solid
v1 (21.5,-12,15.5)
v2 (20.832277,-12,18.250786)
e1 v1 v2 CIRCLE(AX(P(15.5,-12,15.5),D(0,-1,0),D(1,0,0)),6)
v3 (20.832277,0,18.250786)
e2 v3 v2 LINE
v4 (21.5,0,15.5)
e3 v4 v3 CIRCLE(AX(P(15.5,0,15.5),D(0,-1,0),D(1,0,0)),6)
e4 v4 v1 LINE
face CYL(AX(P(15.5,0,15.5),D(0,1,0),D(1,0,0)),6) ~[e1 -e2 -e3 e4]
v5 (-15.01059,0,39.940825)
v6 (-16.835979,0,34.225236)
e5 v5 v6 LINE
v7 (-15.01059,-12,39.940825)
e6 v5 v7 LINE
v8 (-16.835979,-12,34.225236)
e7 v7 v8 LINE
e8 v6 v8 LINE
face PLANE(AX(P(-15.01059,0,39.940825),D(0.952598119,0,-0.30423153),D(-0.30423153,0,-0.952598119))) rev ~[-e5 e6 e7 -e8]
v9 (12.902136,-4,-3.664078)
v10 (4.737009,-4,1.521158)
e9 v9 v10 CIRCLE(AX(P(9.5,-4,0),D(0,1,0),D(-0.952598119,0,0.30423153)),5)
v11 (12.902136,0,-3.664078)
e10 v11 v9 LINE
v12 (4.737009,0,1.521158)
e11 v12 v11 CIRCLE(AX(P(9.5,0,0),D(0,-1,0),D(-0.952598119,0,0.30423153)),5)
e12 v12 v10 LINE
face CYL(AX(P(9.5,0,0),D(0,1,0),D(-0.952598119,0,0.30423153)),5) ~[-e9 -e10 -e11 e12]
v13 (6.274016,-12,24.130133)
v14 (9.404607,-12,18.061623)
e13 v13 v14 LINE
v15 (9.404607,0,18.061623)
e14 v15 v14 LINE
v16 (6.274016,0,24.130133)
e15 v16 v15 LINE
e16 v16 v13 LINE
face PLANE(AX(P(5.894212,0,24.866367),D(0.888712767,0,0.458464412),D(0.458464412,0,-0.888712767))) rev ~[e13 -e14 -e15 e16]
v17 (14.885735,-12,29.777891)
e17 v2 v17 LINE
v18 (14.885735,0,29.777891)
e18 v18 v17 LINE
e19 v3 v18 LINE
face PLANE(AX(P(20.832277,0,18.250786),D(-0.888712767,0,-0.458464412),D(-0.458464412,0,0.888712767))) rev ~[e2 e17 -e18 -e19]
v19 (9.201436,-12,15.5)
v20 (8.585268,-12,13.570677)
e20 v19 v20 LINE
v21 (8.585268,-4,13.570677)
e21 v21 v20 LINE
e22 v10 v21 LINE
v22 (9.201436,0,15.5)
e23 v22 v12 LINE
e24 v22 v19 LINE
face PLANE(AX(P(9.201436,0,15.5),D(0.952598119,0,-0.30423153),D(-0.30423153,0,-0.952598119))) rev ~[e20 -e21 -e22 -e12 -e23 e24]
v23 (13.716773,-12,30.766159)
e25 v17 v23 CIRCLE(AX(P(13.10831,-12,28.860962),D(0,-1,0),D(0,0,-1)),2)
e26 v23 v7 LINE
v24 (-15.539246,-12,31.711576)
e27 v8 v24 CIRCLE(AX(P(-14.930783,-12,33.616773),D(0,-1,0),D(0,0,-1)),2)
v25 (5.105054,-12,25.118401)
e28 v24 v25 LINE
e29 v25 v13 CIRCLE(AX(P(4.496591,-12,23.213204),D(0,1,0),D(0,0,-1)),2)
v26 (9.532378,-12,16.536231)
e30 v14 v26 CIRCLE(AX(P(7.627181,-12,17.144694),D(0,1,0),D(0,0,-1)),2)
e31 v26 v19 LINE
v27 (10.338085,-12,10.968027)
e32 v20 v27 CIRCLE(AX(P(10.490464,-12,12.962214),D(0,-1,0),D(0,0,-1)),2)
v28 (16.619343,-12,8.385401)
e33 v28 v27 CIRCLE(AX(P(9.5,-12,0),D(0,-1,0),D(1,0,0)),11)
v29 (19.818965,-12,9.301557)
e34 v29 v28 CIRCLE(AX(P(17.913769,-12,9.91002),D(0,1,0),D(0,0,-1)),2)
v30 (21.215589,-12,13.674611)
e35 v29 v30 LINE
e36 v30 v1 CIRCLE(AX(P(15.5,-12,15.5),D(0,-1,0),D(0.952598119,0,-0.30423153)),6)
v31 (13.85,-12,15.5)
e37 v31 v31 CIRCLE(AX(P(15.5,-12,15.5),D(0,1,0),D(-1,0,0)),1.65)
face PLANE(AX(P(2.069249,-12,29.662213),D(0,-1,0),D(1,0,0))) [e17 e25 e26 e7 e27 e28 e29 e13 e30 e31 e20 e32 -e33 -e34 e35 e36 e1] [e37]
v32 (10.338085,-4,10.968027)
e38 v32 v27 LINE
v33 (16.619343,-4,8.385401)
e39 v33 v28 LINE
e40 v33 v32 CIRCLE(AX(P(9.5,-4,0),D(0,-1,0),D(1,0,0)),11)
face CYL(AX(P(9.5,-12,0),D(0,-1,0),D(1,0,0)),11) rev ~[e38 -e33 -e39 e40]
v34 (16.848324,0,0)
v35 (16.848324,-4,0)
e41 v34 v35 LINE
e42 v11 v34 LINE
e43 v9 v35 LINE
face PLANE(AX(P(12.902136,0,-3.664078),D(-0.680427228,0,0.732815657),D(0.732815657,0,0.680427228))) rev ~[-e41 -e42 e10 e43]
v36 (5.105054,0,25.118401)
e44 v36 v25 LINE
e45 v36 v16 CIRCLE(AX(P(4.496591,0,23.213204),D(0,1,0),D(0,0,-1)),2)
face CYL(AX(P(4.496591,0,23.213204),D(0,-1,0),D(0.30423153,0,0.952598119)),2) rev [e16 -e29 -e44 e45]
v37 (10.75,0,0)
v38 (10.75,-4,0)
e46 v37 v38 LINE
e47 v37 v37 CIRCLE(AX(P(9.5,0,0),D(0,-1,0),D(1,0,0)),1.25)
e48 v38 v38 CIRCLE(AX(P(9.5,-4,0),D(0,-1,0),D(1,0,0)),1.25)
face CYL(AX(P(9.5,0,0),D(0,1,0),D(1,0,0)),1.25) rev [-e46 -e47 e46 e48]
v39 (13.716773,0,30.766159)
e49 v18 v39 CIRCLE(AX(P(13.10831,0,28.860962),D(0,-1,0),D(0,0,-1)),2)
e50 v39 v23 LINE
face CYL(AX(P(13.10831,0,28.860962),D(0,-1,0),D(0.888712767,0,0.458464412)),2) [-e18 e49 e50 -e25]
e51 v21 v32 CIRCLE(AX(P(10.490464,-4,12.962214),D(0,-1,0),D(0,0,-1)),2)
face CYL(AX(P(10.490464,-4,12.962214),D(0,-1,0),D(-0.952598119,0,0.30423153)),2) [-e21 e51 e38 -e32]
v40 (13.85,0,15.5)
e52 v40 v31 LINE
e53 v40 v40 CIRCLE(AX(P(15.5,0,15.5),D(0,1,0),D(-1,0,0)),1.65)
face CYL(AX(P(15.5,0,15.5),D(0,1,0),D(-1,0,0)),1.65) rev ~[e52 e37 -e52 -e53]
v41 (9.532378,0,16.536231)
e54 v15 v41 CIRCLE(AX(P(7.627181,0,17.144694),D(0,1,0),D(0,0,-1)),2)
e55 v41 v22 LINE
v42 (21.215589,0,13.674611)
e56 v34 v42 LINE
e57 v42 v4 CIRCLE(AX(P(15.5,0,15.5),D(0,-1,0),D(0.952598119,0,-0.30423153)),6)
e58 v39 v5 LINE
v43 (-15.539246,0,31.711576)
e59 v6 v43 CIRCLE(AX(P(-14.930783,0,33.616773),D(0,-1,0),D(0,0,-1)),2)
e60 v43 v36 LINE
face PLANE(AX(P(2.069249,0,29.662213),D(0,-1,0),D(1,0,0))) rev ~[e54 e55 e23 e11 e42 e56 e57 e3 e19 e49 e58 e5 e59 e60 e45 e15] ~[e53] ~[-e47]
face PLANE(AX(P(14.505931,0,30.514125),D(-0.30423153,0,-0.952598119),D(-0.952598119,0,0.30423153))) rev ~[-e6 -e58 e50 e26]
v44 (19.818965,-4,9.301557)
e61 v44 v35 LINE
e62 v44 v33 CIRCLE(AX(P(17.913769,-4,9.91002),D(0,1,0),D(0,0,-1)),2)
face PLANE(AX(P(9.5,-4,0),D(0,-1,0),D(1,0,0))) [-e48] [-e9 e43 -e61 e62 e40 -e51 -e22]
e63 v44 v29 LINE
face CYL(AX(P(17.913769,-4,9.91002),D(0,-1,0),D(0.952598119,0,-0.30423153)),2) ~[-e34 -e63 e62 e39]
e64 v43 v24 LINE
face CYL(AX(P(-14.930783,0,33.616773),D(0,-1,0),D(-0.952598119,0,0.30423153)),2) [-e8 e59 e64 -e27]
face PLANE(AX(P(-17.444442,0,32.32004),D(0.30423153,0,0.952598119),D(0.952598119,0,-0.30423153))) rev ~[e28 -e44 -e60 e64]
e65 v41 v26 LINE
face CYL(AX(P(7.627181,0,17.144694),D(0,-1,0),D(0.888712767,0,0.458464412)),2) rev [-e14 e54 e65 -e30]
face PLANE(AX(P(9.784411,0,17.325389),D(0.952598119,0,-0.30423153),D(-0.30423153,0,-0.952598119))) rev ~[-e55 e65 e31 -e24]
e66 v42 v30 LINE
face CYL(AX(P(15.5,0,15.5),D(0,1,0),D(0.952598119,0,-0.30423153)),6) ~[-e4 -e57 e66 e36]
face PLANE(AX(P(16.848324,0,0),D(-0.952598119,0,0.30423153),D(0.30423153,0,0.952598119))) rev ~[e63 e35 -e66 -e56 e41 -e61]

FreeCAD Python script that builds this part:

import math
import FreeCAD as App
import Part
import Sketcher
from FreeCAD import Vector


def edges_at(feature, points):
    """Names of the edges that pass closest to the given points."""
    edges = feature.Shape.Edges
    near = lambda p: min(range(len(edges)), key=lambda i: edges[i].distToShape(Part.Vertex(*p))[0])
    return sorted({f"Edge{near(p) + 1}" for p in points})

doc = App.newDocument("Part")
body = doc.addObject("PartDesign::Body", "Body")

sketch1 = body.newObject("Sketcher::SketchObject", "Sketch")
sketch1.AttachmentSupport = (doc.getObject("XZ_Plane"), [""])
sketch1.MapMode = "FlatFace"
sketch1.addGeometry(Part.LineSegment(Vector(20.832277, 18.250786, 0), Vector(14.505931, 30.514125, 0)), False)
sketch1.addGeometry(Part.LineSegment(Vector(14.505931, 30.514125, 0), Vector(-15.01059, 39.940825, 0)), False)
sketch1.addGeometry(Part.LineSegment(Vector(-15.01059, 39.940825, 0), Vector(-17.444442, 32.32004, 0)), False)
sketch1.addGeometry(Part.LineSegment(Vector(-17.444442, 32.32004, 0), Vector(5.894212, 24.866367, 0)), False)
sketch1.addGeometry(Part.LineSegment(Vector(5.894212, 24.866367, 0), Vector(9.784411, 17.325389, 0)), False)
sketch1.addGeometry(Part.LineSegment(Vector(9.784411, 17.325389, 0), Vector(9.201436, 15.5, 0)), False)
sketch1.addGeometry(Part.LineSegment(Vector(9.201436, 15.5, 0), Vector(4.737009, 1.521158, 0)), False)
sketch1.addGeometry(Part.ArcOfCircle(Part.Circle(Vector(9.5, 0, 0), Vector(0, 0, 1), 5), math.radians(162.288063), math.radians(312.877037)), False)
sketch1.addGeometry(Part.LineSegment(Vector(12.902136, -3.664078, 0), Vector(16.848324, 0, 0)), False)
sketch1.addGeometry(Part.LineSegment(Vector(16.848324, 0, 0), Vector(21.215589, 13.674611, 0)), False)
sketch1.addGeometry(Part.ArcOfCircle(Part.Circle(Vector(15.5, 15.5, 0), Vector(0, 0, 1), 6), math.radians(-17.711937), math.radians(0)), False)
sketch1.addGeometry(Part.ArcOfCircle(Part.Circle(Vector(15.5, 15.5, 0), Vector(0, 0, 1), 6), math.radians(0), math.radians(27.288063)), False)
sketch1.addGeometry(Part.Circle(Vector(9.5, 0, 0), Vector(0, 0, 1), 1.25), False)
sketch1.addGeometry(Part.Circle(Vector(15.5, 15.5, 0), Vector(0, 0, 1), 1.65), False)
sketch1.addConstraint(Sketcher.Constraint("Coincident", 0, 2, 1, 1))
sketch1.addConstraint(Sketcher.Constraint("Coincident", 1, 2, 2, 1))
sketch1.addConstraint(Sketcher.Constraint("Coincident", 2, 2, 3, 1))
sketch1.addConstraint(Sketcher.Constraint("Coincident", 3, 2, 4, 1))
sketch1.addConstraint(Sketcher.Constraint("Coincident", 4, 2, 5, 1))
sketch1.addConstraint(Sketcher.Constraint("Coincident", 5, 2, 6, 1))
sketch1.addConstraint(Sketcher.Constraint("Tangent", 6, 2, 7, 1))
sketch1.addConstraint(Sketcher.Constraint("Tangent", 7, 2, 8, 1))
sketch1.addConstraint(Sketcher.Constraint("Coincident", 8, 2, 9, 1))
sketch1.addConstraint(Sketcher.Constraint("Tangent", 9, 2, 10, 1))
sketch1.addConstraint(Sketcher.Constraint("Tangent", 10, 2, 11, 1))
sketch1.addConstraint(Sketcher.Constraint("Tangent", 11, 2, 0, 1))
sketch1.addConstraint(Sketcher.Constraint("Coincident", 12, 3, 7, 3))
sketch1.addConstraint(Sketcher.Constraint("Coincident", 13, 3, 10, 3))
sketch1.addConstraint(Sketcher.Constraint("Equal", 10, 11))
sketch1.addConstraint(Sketcher.Constraint("PointOnObject", 7, 3, -1))
sketch1.addConstraint(Sketcher.Constraint("PointOnObject", 8, 2, -1))
sketch1.addConstraint(Sketcher.Constraint("Perpendicular", 1, 2))
sketch1.addConstraint(Sketcher.Constraint("Perpendicular", 2, 3))
sketch1.addConstraint(Sketcher.Constraint("Parallel", 0, 4))
sketch1.addConstraint(Sketcher.Constraint("Perpendicular", 3, 5))
sketch1.addConstraint(Sketcher.Constraint("Parallel", 5, 6))
sketch1.addConstraint(Sketcher.Constraint("Parallel", 6, 9))
sketch1.addConstraint(Sketcher.Constraint("Horizontal", 13, 3, 5, 2))
sketch1.addConstraint(Sketcher.Constraint("Horizontal", 5, 2, 10, 2))
sketch1.addConstraint(Sketcher.Constraint("Radius", 7, 5.0))
sketch1.addConstraint(Sketcher.Constraint("Radius", 10, 6.0))
sketch1.addConstraint(Sketcher.Constraint("Diameter", 12, 2.5))
sketch1.addConstraint(Sketcher.Constraint("Diameter", 13, 3.3))
sketch1.addConstraint(Sketcher.Constraint("Distance", 2, 8.0))
sketch1.addConstraint(Sketcher.Constraint("DistanceX", 7, 3, 10, 3, 6.0))
sketch1.addConstraint(Sketcher.Constraint("Distance", 3, 24.5))
sketch1.addConstraint(Sketcher.Constraint("DistanceX", -1, 1, 7, 3, 9.5))
sketch1.addConstraint(Sketcher.Constraint("DistanceY", -1, 1, 10, 3, 15.5))
sketch1.addConstraint(Sketcher.Constraint("DistanceY", 0, 2, 1, 2, 9.4267))
sketch1.addConstraint(Sketcher.Constraint("DistanceX", 3, 2, 4, 2, 3.8902))
sketch1.addConstraint(Sketcher.Constraint("DistanceX", 6, 2, 4, 2, 5.047402))
sketch1.addConstraint(Sketcher.Constraint("Distance", 0, 13.79899))
pad1 = body.newObject("PartDesign::Pad", "Pad")
pad1.Profile = sketch1
pad1.Length = 12

sketch2 = body.newObject("Sketcher::SketchObject", "Sketch001")
sketch2.AttachmentSupport = (doc.getObject("XZ_Plane"), [""])
sketch2.MapMode = "FlatFace"
sketch2.AttachmentOffset = App.Placement(Vector(0, 0, 12), App.Rotation())
sketch2.addGeometry(Part.Circle(Vector(9.5, 0, 0), Vector(0, 0, 1), 11), False)
sketch2.addGeometry(Part.Circle(Vector(9.5, 0, 0), Vector(0, 0, 1), 1.25), False)
sketch2.addConstraint(Sketcher.Constraint("Coincident", 1, 3, 0, 3))
sketch2.addConstraint(Sketcher.Constraint("PointOnObject", 0, 3, -1))
sketch2.addConstraint(Sketcher.Constraint("Diameter", 0, 22.0))
sketch2.addConstraint(Sketcher.Constraint("Diameter", 1, 2.5))
sketch2.addConstraint(Sketcher.Constraint("DistanceX", -1, 1, 0, 3, 9.5))
pocket1 = body.newObject("PartDesign::Pocket", "Pocket")
pocket1.Profile = sketch2
pocket1.Length = 8
doc.recompute()

fillet = body.newObject("PartDesign::Fillet", "Fillet")
fillet.Base = (pocket1, edges_at(pocket1, [
    (-17.444, -6, 32.32),
    (5.894, -6, 24.866),
    (9.784, -6, 17.325),
    (7.718, -8, 10.855),
    (18.75, -8, 5.953),
    (14.506, -6, 30.514),
]))
fillet.Radius = 2

doc.recompute()
